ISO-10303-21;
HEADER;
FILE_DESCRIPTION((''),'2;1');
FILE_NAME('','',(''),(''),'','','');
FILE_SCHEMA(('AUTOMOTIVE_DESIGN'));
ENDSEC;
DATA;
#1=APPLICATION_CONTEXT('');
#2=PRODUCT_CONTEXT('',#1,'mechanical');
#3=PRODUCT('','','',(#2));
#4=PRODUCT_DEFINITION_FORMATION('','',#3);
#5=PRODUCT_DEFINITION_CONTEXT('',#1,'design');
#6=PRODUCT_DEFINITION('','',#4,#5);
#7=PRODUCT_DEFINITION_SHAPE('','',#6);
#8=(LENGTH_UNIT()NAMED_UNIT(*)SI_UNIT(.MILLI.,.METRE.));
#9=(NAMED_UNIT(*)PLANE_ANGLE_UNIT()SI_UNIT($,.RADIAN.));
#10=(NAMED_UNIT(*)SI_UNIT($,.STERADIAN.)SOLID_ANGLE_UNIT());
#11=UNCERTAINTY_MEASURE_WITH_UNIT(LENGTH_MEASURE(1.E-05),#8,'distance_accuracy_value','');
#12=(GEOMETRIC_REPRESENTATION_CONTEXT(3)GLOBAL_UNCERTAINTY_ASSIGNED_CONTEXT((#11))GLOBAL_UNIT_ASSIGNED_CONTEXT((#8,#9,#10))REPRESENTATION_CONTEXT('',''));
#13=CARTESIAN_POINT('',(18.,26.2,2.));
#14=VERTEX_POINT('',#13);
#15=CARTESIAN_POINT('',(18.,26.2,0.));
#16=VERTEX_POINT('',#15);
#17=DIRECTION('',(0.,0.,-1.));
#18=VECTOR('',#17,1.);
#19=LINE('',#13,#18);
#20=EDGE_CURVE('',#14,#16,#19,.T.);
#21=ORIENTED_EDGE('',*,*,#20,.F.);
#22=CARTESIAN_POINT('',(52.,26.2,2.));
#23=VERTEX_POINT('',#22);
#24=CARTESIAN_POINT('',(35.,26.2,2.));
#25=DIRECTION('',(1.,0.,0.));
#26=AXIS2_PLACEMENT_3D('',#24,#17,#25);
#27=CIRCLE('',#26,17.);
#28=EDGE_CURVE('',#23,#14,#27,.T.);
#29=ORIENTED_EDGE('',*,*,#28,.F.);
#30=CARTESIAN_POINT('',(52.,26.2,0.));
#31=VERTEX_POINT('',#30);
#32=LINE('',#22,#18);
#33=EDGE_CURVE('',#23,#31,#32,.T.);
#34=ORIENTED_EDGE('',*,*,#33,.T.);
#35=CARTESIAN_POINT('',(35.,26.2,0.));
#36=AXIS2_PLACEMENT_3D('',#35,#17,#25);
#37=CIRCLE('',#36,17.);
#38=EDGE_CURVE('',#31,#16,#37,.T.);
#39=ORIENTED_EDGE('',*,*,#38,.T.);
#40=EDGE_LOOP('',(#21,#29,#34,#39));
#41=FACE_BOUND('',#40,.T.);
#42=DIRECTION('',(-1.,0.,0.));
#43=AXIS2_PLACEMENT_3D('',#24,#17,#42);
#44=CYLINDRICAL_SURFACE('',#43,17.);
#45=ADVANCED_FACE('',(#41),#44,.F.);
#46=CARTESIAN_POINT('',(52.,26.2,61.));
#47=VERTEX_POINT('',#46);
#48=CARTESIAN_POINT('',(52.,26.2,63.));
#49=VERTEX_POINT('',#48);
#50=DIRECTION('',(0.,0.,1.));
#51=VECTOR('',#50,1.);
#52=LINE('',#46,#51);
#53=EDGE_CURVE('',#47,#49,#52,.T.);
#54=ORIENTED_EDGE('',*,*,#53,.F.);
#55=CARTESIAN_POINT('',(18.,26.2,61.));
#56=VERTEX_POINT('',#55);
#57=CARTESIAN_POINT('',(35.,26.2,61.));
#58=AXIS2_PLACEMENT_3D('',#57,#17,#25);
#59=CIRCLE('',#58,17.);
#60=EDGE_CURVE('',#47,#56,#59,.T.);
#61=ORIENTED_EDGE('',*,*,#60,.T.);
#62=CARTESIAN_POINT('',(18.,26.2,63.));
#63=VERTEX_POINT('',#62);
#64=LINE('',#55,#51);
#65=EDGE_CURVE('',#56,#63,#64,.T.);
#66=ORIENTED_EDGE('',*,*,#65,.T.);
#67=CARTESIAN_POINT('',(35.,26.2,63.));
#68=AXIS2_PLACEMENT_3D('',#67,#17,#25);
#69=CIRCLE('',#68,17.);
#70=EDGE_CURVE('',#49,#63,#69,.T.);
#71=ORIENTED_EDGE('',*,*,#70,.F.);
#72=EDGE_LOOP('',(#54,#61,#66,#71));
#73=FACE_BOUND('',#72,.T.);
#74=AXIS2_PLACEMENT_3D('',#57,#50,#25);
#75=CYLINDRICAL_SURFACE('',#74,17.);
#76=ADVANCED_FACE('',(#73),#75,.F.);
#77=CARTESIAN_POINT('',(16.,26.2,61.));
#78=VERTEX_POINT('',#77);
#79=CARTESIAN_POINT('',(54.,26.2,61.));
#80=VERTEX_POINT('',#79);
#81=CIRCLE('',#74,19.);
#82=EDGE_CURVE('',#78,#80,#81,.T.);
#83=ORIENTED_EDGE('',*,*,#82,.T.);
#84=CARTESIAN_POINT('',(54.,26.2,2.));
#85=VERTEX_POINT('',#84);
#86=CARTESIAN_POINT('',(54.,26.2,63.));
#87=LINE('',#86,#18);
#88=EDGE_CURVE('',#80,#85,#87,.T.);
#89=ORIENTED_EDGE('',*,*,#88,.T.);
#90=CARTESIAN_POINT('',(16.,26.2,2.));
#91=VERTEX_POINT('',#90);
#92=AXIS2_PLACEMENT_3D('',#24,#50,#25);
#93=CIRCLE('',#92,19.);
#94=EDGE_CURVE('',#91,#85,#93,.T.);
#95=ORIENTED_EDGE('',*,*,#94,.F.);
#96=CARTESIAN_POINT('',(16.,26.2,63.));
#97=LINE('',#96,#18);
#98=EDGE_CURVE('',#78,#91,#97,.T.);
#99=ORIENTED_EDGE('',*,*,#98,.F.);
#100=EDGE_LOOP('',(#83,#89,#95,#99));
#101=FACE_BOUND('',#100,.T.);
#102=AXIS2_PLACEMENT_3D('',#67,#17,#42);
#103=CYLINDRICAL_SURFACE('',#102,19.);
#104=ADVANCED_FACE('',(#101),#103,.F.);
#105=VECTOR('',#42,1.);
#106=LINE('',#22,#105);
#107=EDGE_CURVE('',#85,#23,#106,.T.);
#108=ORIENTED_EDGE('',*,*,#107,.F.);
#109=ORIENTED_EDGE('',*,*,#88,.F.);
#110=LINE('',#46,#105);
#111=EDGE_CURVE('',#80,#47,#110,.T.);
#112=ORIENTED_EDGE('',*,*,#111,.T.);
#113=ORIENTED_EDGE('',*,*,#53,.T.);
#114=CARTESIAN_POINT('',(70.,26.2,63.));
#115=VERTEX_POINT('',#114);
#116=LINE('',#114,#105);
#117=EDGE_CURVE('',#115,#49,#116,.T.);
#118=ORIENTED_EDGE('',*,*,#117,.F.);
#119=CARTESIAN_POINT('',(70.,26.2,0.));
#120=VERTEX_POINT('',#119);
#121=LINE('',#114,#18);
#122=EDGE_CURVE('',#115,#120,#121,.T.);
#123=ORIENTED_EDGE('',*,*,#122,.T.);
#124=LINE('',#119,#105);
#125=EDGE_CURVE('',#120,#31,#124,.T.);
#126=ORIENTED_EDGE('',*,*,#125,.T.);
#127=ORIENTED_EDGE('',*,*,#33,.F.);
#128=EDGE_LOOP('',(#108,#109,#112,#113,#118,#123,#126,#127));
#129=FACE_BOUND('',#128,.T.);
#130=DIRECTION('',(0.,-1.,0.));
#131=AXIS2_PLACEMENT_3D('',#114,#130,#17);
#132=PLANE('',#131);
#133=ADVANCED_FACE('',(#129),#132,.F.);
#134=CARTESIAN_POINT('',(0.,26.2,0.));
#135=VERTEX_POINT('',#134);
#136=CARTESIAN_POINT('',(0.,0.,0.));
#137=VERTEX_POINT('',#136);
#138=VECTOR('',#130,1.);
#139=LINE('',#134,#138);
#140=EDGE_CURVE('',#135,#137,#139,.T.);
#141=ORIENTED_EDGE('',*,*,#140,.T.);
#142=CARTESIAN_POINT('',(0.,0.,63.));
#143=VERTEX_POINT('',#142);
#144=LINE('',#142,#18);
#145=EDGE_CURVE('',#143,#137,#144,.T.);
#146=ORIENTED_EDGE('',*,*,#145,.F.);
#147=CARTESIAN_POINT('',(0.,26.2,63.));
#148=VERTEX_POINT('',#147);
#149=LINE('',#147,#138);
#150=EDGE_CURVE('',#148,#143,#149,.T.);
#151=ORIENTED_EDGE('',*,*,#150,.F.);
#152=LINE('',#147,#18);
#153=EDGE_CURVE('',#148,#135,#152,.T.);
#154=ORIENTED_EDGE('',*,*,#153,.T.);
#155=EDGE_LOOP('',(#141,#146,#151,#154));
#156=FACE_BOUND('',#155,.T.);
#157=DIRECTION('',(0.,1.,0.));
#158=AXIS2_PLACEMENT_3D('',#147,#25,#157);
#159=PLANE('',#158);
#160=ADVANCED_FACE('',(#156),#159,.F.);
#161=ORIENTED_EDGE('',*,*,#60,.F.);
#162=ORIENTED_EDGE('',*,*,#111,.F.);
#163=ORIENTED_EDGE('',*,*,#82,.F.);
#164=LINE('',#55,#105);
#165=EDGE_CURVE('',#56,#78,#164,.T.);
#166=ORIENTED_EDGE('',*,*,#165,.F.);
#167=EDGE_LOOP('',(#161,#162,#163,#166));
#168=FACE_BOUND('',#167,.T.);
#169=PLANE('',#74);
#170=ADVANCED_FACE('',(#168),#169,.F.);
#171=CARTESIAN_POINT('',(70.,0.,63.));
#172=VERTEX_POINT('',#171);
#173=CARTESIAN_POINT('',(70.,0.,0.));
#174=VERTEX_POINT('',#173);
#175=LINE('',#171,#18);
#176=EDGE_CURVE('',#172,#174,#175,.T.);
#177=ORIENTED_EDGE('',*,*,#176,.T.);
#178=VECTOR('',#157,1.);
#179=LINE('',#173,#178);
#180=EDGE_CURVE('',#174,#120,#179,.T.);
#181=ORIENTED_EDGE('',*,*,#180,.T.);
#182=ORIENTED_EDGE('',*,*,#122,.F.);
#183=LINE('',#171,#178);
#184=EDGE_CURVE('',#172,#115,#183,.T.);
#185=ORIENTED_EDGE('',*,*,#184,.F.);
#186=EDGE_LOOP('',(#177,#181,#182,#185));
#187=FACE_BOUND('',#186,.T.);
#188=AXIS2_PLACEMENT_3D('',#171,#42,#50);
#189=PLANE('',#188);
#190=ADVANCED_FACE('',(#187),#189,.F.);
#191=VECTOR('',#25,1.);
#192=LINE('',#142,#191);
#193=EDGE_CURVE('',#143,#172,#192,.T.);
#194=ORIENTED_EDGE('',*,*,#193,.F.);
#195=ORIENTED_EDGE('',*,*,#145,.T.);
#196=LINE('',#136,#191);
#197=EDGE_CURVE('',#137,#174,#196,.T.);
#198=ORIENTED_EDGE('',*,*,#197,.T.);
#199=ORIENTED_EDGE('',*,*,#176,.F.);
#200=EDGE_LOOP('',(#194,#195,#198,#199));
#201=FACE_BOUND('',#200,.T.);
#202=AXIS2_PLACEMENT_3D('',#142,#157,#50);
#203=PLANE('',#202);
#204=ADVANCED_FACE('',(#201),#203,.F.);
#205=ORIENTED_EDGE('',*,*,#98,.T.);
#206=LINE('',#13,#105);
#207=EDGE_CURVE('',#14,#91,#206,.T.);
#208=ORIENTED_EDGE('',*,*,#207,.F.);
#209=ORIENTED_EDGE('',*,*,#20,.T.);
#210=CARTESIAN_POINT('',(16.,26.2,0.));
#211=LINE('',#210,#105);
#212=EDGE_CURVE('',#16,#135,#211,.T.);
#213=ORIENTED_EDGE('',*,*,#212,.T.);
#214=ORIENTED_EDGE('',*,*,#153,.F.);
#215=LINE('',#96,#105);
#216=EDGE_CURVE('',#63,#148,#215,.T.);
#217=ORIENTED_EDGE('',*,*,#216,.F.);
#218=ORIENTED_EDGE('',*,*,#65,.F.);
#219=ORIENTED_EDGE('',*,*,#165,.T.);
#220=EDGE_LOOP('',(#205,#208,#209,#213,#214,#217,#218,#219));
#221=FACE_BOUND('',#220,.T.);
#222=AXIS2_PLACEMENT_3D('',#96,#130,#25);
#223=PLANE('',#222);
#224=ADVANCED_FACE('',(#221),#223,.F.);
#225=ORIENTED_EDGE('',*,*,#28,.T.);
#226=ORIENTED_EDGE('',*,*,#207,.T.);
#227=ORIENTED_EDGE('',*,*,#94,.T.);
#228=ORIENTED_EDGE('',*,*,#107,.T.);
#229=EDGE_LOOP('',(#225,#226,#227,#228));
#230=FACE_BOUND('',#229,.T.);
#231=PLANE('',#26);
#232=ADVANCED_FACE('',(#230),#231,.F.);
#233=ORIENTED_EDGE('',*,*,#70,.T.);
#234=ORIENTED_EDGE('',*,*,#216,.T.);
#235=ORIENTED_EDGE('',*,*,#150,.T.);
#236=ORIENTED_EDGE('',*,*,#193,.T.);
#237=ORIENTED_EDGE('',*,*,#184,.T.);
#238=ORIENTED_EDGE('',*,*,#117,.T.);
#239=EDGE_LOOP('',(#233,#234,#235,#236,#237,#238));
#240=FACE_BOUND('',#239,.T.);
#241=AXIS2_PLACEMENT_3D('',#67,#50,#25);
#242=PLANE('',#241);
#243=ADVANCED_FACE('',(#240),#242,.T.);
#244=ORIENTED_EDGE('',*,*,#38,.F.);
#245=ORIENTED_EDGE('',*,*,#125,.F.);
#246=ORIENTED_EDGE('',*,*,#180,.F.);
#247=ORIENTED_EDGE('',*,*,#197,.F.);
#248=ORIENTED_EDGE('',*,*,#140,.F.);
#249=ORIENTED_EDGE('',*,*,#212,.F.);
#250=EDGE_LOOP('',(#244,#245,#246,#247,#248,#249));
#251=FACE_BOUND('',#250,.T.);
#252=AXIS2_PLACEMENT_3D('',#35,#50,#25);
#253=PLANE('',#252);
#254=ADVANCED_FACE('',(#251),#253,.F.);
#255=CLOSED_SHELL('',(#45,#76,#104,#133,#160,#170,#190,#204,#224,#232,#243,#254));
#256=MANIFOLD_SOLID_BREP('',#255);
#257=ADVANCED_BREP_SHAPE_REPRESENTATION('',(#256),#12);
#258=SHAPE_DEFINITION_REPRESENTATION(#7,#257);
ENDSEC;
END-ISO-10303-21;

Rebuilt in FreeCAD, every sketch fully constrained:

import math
import FreeCAD as App
import Part
import Sketcher

V = App.Vector
Q = App.Units.Quantity

doc = App.newDocument("Part")
body = doc.addObject("PartDesign::Body", "Body")

sketch1 = doc.addObject("Sketcher::SketchObject", "Sketch")
body.addObject(sketch1)
sketch1.AttachmentSupport = (doc.XY_Plane, [""])
sketch1.MapMode = "FlatFace"
sketch1.addGeometry(Part.LineSegment(V(0, 0, 0), V(70, 0, 0)), False)
sketch1.addGeometry(Part.LineSegment(V(70, 0, 0), V(70, 26, 0)), False)
sketch1.addGeometry(Part.LineSegment(V(70, 26, 0), V(54, 26, 0)), False)
sketch1.addGeometry(Part.ArcOfCircle(Part.Circle(V(35, 26, 0), V(0, 0, 1), 19), math.radians(180), math.radians(360)), False)
sketch1.addGeometry(Part.LineSegment(V(16, 26, 0), V(0, 26, 0)), False)
sketch1.addGeometry(Part.LineSegment(V(0, 26, 0), V(0, 0, 0)), False)
sketch1.addConstraint(Sketcher.Constraint("Coincident", 0, 2, 1, 1))
sketch1.addConstraint(Sketcher.Constraint("Coincident", 1, 2, 2, 1))
sketch1.addConstraint(Sketcher.Constraint("Coincident", 2, 2, 3, 2))
sketch1.addConstraint(Sketcher.Constraint("Coincident", 3, 1, 4, 1))
sketch1.addConstraint(Sketcher.Constraint("Coincident", 4, 2, 5, 1))
sketch1.addConstraint(Sketcher.Constraint("Coincident", 5, 2, 0, 1))
sketch1.addConstraint(Sketcher.Constraint("Horizontal", 0))
sketch1.addConstraint(Sketcher.Constraint("Vertical", 1))
sketch1.addConstraint(Sketcher.Constraint("Horizontal", 2))
sketch1.addConstraint(Sketcher.Constraint("Horizontal", 4))
sketch1.addConstraint(Sketcher.Constraint("Vertical", 5))
sketch1.addConstraint(Sketcher.Constraint("Coincident", 5, 2, -1, 1))
sketch1.addConstraint(Sketcher.Constraint("Horizontal", 3, 3, 1, 2))
sketch1.addConstraint(Sketcher.Constraint("Horizontal", 2, 2, 3, 1))
sketch1.addConstraint(Sketcher.Constraint("Equal", 2, 4))
sketch1.addConstraint(Sketcher.Constraint("Radius", 3, Q("19 mm")))
sketch1.addConstraint(Sketcher.Constraint("DistanceX", 0, 1, 0, 2, Q("70 mm")))
sketch1.addConstraint(Sketcher.Constraint("DistanceY", 1, 1, 1, 2, Q("26.2 mm")))
pad1 = doc.addObject("PartDesign::Pad", "Pad")
body.addObject(pad1)
pad1.Profile = sketch1
pad1.Length = 63

sketch2 = doc.addObject("Sketcher::SketchObject", "Sketch001")
body.addObject(sketch2)
sketch2.AttachmentSupport = (doc.XY_Plane, [""])
sketch2.MapMode = "FlatFace"
sketch2.AttachmentOffset = App.Placement(V(0, 0, 61), App.Rotation())
sketch2.addGeometry(Part.LineSegment(V(18, 26.2, 0), V(16, 26.2, 0)), False)
sketch2.addGeometry(Part.ArcOfCircle(Part.Circle(V(35, 26.2, 0), V(0, 0, 1), 19), math.radians(180), math.radians(360)), False)
sketch2.addGeometry(Part.LineSegment(V(54, 26.2, 0), V(52, 26.2, 0)), False)
sketch2.addGeometry(Part.ArcOfCircle(Part.Circle(V(35, 26.2, 0), V(0, 0, 1), 17), math.radians(180), math.radians(360)), False)
sketch2.addConstraint(Sketcher.Constraint("Coincident", 0, 2, 1, 1))
sketch2.addConstraint(Sketcher.Constraint("Coincident", 1, 2, 2, 1))
sketch2.addConstraint(Sketcher.Constraint("Coincident", 2, 2, 3, 2))
sketch2.addConstraint(Sketcher.Constraint("Coincident", 3, 1, 0, 1))
sketch2.addConstraint(Sketcher.Constraint("Horizontal", 0))
sketch2.addConstraint(Sketcher.Constraint("Horizontal", 2))
sketch2.addConstraint(Sketcher.Constraint("Coincident", 3, 3, 1, 3))
sketch2.addConstraint(Sketcher.Constraint("Horizontal", 3, 3, 0, 2))
sketch2.addConstraint(Sketcher.Constraint("Horizontal", 0, 2, 1, 2))
sketch2.addConstraint(Sketcher.Constraint("Radius", 1, Q("19 mm")))
sketch2.addConstraint(Sketcher.Constraint("Radius", 3, Q("17 mm")))
sketch2.addConstraint(Sketcher.Constraint("DistanceX", -1, 1, 1, 3, Q("35 mm")))
sketch2.addConstraint(Sketcher.Constraint("DistanceY", -1, 1, 1, 3, Q("26.2 mm")))
pad2 = doc.addObject("PartDesign::Pad", "Pad001")
body.addObject(pad2)
pad2.Profile = sketch2
pad2.Length = 2
doc.recompute()

datumplane = doc.addObject("PartDesign::Plane", "DatumPlane")
body.addObject(datumplane)
datumplane.AttachmentSupport = (doc.XY_Plane, [""])
datumplane.MapMode = "FlatFace"
datumplane.AttachmentOffset = App.Placement(V(0, 0, 31.5), App.Rotation())
mirrored = doc.addObject("PartDesign::Mirrored", "Mirrored")
body.addObject(mirrored)
mirrored.Originals = [pad2]
mirrored.MirrorPlane = (datumplane, [""])
body.Tip = mirrored

doc.recompute()
